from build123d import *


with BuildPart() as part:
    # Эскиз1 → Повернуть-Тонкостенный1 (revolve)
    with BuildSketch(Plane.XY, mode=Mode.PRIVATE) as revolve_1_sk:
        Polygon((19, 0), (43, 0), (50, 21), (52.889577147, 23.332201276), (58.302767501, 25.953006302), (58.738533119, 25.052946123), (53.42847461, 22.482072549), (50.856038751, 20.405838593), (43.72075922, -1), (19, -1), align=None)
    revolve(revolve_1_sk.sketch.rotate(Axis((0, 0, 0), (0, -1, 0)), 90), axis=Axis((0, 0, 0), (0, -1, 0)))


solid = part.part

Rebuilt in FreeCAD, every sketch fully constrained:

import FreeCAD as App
import Part
import Sketcher

doc = App.newDocument("Part")
params = doc.addObject("Spreadsheet::Sheet", "Params")
for row, (alias, value) in enumerate([
    ("sketch1_width", "24 mm"),
    ("sketch1_height", "1 mm"),
    ("sketch1_length", "1 mm"),
    ("revolution_angle", "360 deg"),
], start=1):
    params.set(f"A{row}", alias)
    params.set(f"B{row}", "=" + value)
    params.setAlias(f"B{row}", alias)

body = doc.addObject("PartDesign::Body", "Body")

sketch1 = doc.addObject("Sketcher::SketchObject", "Sketch")
body.addObject(sketch1)
sketch1.AttachmentSupport = (doc.XY_Plane, [""])
sketch1.MapMode = "FlatFace"
sketch1.addGeometry([
    Part.LineSegment(App.Vector(43, 0, 0), App.Vector(19, 0, 0)),
    Part.LineSegment(App.Vector(19, 0, 0), App.Vector(19, -1, 0)),
    Part.LineSegment(App.Vector(19, -1, 0), App.Vector(43.720759, -1, 0)),
    Part.LineSegment(App.Vector(43.720759, -1, 0), App.Vector(50.856039, 20.405839, 0)),
    Part.LineSegment(App.Vector(50.856039, 20.405839, 0), App.Vector(53.428475, 22.482073, 0)),
    Part.LineSegment(App.Vector(53.428475, 22.482073, 0), App.Vector(58.738533, 25.052946, 0)),
    Part.LineSegment(App.Vector(58.738533, 25.052946, 0), App.Vector(58.302768, 25.953006, 0)),
    Part.LineSegment(App.Vector(58.302768, 25.953006, 0), App.Vector(52.889577, 23.332201, 0)),
    Part.LineSegment(App.Vector(52.889577, 23.332201, 0), App.Vector(50, 21, 0)),
    Part.LineSegment(App.Vector(50, 21, 0), App.Vector(43, 0, 0)),
], False)
sketch1.addConstraint([
    Sketcher.Constraint("Coincident", 0, 2, 1, 1),
    Sketcher.Constraint("Coincident", 1, 2, 2, 1),
    Sketcher.Constraint("Coincident", 2, 2, 3, 1),
    Sketcher.Constraint("Coincident", 3, 2, 4, 1),
    Sketcher.Constraint("Coincident", 4, 2, 5, 1),
    Sketcher.Constraint("Coincident", 5, 2, 6, 1),
    Sketcher.Constraint("Coincident", 6, 2, 7, 1),
    Sketcher.Constraint("Coincident", 7, 2, 8, 1),
    Sketcher.Constraint("Coincident", 8, 2, 9, 1),
    Sketcher.Constraint("Coincident", 9, 2, 0, 1),
    Sketcher.Constraint("Horizontal", 0),
    Sketcher.Constraint("Vertical", 1),
    Sketcher.Constraint("Horizontal", 2),
    Sketcher.Constraint("PointOnObject", 0, 2, -1),
    Sketcher.Constraint("DistanceX", 0, 2, 0, 1, 24.0),
    Sketcher.Constraint("DistanceY", 1, 2, 1, 1, 1.0),
    Sketcher.Constraint("Distance", 6, 1.0),
    Sketcher.Constraint("DistanceX", -1, 1, 0, 2, 19.0),
    Sketcher.Constraint("DistanceX", -1, 1, 8, 2, 50.0),
    Sketcher.Constraint("DistanceY", -1, 1, 8, 2, 21.0),
    Sketcher.Constraint("DistanceX", 2, 1, 2, 2, 24.720759),
    Sketcher.Constraint("DistanceY", -1, 1, 7, 2, 23.332201),
    Sketcher.Constraint("Distance", 4, 3.305779),
    Sketcher.Constraint("Distance", 5, 5.899671),
    Sketcher.Constraint("Distance", 8, 3.71333),
    Sketcher.Constraint("DistanceX", -1, 1, 3, 2, 50.856039),
    Sketcher.Constraint("DistanceY", -1, 1, 3, 2, 20.405839),
    Sketcher.Constraint("DistanceX", 4, 2, 5, 2, 5.310059),
    Sketcher.Constraint("DistanceY", 5, 2, 6, 2, 0.90006),
    Sketcher.Constraint("DistanceX", 3, 2, 6, 2, 7.446729),
])
sketch1.setExpression("Constraints[14]", "Params.sketch1_width")
sketch1.setExpression("Constraints[15]", "Params.sketch1_height")
sketch1.setExpression("Constraints[16]", "Params.sketch1_length")
revolution = doc.addObject("PartDesign::Revolution", "Revolution")
body.addObject(revolution)
revolution.Profile = sketch1
revolution.ReferenceAxis = (sketch1, ["V_Axis"])
revolution.setExpression("Angle", "Params.revolution_angle")

doc.recompute()
